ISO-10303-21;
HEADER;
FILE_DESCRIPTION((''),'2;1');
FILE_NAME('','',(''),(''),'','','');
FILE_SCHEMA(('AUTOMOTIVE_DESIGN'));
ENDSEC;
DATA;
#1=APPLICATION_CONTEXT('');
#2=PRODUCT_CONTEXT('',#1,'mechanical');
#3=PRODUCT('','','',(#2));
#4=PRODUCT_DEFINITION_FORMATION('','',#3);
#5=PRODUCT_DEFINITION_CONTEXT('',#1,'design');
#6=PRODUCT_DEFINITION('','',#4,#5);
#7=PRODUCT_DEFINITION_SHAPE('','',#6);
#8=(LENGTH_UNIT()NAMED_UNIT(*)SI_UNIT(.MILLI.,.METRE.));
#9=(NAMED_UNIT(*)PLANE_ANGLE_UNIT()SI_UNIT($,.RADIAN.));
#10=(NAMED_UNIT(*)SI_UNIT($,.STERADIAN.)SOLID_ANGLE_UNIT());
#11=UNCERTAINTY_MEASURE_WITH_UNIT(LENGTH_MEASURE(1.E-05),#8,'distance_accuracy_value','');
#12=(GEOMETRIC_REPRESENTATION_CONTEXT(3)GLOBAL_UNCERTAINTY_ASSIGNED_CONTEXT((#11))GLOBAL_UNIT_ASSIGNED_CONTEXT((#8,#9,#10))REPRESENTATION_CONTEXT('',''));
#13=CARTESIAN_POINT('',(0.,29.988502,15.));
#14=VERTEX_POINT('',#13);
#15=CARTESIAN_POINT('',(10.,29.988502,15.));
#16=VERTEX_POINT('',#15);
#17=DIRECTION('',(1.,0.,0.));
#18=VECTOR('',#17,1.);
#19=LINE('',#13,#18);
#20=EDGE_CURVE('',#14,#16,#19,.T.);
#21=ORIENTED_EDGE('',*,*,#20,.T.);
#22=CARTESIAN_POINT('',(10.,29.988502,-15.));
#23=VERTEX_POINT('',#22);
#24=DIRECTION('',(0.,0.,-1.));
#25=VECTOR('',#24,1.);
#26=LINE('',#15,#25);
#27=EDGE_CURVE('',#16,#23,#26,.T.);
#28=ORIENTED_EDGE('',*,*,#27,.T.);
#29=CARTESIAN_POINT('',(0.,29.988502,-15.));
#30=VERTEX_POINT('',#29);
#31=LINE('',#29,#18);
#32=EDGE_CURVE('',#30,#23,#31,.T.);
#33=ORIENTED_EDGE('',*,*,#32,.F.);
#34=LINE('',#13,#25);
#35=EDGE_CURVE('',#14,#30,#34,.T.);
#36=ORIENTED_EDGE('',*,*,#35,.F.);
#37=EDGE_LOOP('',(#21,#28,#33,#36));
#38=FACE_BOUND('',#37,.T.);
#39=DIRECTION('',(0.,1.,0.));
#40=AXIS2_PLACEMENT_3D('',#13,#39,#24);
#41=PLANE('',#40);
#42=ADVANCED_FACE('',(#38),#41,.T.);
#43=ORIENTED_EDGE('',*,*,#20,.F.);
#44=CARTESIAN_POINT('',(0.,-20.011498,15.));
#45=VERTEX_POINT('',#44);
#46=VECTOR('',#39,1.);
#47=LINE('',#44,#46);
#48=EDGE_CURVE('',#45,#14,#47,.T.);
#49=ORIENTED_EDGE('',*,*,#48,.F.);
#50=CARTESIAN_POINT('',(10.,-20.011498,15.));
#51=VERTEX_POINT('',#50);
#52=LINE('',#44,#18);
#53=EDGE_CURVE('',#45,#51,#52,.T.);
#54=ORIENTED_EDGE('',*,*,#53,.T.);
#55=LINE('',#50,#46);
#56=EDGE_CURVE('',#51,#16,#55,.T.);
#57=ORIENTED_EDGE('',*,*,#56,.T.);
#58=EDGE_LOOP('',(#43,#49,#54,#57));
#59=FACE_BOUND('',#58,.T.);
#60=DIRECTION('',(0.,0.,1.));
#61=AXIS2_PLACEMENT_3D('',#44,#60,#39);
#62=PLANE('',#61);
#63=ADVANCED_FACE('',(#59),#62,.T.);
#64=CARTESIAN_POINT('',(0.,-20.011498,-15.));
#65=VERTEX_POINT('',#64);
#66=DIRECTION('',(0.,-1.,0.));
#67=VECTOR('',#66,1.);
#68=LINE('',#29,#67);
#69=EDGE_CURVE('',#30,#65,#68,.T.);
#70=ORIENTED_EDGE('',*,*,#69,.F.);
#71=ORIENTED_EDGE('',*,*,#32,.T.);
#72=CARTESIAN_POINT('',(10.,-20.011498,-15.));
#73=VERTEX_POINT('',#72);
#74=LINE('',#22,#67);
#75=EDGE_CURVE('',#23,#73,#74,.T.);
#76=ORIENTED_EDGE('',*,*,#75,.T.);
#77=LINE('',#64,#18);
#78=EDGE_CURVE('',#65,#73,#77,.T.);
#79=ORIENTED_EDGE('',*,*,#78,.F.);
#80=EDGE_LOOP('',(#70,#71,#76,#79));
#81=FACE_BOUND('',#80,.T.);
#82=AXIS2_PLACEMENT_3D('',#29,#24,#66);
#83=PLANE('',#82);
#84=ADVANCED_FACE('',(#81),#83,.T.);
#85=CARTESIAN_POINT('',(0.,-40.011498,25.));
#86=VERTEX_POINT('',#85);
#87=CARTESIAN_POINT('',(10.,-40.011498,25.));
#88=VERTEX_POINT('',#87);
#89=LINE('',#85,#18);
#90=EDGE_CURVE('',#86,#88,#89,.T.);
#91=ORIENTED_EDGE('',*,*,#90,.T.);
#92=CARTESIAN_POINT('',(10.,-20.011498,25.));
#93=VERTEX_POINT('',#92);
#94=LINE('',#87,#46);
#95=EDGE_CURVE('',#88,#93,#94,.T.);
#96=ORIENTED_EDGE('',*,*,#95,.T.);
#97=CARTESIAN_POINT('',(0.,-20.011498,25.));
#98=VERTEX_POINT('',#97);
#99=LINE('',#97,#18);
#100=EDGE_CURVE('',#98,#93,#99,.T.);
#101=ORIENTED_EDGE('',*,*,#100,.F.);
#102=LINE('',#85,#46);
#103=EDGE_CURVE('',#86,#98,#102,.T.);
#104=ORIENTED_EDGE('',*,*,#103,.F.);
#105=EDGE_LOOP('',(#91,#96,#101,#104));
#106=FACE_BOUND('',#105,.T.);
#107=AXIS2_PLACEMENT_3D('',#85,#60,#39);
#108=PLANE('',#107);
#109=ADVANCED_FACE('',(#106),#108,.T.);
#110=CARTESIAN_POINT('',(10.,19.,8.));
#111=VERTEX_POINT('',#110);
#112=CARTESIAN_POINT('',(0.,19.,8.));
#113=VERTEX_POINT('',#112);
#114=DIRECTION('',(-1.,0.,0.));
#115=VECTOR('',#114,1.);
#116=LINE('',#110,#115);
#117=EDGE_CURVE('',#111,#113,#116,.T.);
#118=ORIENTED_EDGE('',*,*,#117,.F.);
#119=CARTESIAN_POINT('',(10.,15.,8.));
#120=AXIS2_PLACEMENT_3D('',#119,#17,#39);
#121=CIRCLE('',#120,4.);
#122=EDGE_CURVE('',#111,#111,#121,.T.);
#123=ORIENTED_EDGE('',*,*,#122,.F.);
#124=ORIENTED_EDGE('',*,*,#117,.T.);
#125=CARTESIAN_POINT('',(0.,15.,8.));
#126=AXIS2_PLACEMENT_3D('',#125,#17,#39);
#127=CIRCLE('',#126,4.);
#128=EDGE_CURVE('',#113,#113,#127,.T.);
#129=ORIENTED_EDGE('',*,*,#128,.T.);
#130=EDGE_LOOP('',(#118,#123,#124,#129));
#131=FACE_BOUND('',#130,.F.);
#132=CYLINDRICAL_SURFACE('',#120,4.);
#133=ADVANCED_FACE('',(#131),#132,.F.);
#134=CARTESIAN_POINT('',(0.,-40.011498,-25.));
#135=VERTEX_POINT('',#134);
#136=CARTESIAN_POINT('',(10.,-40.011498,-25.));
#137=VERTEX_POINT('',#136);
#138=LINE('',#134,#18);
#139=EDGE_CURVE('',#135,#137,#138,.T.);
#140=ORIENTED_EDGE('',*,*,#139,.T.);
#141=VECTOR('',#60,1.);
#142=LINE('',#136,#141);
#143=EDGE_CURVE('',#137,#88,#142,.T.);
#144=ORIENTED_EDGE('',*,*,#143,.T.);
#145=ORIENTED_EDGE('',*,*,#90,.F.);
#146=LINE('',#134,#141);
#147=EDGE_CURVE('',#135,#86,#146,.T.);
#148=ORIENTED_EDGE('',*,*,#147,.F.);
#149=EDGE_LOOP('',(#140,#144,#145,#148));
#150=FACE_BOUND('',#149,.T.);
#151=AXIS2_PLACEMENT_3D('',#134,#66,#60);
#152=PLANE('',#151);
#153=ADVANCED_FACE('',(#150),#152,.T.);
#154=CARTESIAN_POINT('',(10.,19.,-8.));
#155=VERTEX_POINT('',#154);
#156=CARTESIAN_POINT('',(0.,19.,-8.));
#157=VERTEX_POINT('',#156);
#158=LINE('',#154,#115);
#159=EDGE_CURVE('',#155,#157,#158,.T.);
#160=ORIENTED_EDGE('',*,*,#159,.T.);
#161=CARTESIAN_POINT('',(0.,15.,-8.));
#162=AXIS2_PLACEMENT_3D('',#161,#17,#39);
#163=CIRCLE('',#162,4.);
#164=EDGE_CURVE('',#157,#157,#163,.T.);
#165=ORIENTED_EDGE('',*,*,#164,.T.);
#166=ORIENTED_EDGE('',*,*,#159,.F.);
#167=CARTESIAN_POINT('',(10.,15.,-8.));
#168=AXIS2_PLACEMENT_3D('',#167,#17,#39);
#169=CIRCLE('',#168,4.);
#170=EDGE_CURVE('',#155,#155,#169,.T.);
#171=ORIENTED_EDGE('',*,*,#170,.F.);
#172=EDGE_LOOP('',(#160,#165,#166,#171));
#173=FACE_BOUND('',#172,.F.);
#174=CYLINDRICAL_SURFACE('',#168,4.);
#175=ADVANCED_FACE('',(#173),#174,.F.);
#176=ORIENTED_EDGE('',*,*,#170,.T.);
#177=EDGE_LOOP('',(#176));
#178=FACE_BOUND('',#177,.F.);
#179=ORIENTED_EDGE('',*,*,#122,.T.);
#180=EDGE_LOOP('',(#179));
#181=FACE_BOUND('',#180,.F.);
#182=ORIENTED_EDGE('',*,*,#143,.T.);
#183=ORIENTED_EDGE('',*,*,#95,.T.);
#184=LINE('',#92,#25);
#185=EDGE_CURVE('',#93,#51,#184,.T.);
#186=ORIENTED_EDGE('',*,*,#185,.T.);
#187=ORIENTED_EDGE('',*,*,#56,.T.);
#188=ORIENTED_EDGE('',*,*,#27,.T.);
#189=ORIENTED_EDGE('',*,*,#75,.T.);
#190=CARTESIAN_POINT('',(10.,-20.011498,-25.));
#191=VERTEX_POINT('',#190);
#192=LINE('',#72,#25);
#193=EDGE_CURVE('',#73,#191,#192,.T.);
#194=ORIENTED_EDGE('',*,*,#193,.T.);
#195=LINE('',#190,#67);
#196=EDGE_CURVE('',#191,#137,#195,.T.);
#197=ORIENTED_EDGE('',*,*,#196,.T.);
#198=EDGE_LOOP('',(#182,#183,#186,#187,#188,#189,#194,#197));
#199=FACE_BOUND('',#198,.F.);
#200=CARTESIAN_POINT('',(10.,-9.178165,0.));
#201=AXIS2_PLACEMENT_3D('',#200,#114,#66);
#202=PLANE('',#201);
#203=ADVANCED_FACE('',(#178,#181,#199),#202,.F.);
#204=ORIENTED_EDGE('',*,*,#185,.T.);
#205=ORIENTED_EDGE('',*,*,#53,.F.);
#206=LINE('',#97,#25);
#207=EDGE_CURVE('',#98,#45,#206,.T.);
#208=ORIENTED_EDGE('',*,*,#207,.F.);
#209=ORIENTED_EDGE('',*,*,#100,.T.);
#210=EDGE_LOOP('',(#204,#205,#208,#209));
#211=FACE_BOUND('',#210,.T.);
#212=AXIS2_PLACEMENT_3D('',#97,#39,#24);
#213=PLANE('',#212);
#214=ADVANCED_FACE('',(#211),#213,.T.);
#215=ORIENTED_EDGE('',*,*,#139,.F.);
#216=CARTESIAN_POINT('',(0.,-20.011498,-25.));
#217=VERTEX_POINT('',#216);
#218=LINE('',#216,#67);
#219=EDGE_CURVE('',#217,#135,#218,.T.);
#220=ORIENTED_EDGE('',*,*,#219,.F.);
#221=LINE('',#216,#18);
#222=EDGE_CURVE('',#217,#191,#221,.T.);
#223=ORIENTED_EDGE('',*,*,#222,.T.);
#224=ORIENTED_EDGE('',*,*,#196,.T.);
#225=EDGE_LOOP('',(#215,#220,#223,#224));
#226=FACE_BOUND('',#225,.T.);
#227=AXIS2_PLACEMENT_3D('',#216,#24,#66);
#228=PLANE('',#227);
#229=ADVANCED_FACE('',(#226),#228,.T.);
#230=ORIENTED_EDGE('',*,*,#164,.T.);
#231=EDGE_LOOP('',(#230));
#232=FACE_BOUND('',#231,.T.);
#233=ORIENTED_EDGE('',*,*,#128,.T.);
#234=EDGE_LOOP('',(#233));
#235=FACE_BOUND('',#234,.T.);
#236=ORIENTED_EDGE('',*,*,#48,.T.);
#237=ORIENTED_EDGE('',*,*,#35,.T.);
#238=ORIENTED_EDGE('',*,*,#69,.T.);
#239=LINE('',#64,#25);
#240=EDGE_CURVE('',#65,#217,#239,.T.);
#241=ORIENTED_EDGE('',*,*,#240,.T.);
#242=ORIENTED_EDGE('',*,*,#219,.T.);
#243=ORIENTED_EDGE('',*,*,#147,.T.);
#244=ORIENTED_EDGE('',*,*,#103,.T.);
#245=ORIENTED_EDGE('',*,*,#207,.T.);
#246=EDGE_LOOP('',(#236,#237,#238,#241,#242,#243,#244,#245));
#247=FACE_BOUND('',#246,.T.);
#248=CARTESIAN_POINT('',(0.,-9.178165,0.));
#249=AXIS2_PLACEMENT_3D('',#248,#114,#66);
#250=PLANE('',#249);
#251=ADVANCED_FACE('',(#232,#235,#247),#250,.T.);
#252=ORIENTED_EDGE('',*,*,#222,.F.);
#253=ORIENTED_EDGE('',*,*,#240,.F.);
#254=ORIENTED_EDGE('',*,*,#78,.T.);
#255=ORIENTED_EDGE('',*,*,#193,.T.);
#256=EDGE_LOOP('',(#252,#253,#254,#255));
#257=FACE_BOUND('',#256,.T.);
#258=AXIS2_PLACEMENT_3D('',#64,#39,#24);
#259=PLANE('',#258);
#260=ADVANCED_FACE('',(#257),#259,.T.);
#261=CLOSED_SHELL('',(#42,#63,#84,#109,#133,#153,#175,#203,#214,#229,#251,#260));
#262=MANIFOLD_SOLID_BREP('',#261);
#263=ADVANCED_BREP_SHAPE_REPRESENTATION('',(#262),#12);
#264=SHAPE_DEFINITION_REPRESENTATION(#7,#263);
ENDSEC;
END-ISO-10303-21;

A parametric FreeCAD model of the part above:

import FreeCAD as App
import Part
import Sketcher

V = App.Vector

doc = App.newDocument("Part")
params = doc.addObject("Spreadsheet::Sheet", "Params")
for row, (alias, value) in enumerate([
    ("sketch1_width", "20 mm"),
    ("sketch1_width2", "50 mm"),
    ("sketch1_height", "10 mm"),
    ("pad1_length", "10 mm"),
    ("sketch2_diameter", "8 mm"),
    ("pocket1_length", "10 mm"),
], start=1):
    params.set(f"A{row}", alias)
    params.set(f"B{row}", "=" + value)
    params.setAlias(f"B{row}", alias)

body = doc.addObject("PartDesign::Body", "Body")

# Sketch on YZ plane
sketch1 = body.newObject("Sketcher::SketchObject", "Sketch")
sketch1.AttachmentSupport = (doc.getObject("YZ_Plane"), [""])
sketch1.MapMode = "FlatFace"
sketch1.addGeometry(Part.LineSegment(V(-20, 25, 0), V(-40, 25, 0)), False)
sketch1.addGeometry(Part.LineSegment(V(-40, 25, 0), V(-40, -25, 0)), False)
sketch1.addGeometry(Part.LineSegment(V(-40, -25, 0), V(-20, -25, 0)), False)
sketch1.addGeometry(Part.LineSegment(V(-20, -25, 0), V(-20, -15, 0)), False)
sketch1.addGeometry(Part.LineSegment(V(-20, -15, 0), V(30, -15, 0)), False)
sketch1.addGeometry(Part.LineSegment(V(30, -15, 0), V(30, 15, 0)), False)
sketch1.addGeometry(Part.LineSegment(V(30, 15, 0), V(-20, 15, 0)), False)
sketch1.addGeometry(Part.LineSegment(V(-20, 15, 0), V(-20, 25, 0)), False)
sketch1.addConstraint(Sketcher.Constraint("Coincident", 0, 2, 1, 1))
sketch1.addConstraint(Sketcher.Constraint("Coincident", 1, 2, 2, 1))
sketch1.addConstraint(Sketcher.Constraint("Coincident", 2, 2, 3, 1))
sketch1.addConstraint(Sketcher.Constraint("Coincident", 3, 2, 4, 1))
sketch1.addConstraint(Sketcher.Constraint("Coincident", 4, 2, 5, 1))
sketch1.addConstraint(Sketcher.Constraint("Coincident", 5, 2, 6, 1))
sketch1.addConstraint(Sketcher.Constraint("Coincident", 6, 2, 7, 1))
sketch1.addConstraint(Sketcher.Constraint("Coincident", 7, 2, 0, 1))
sketch1.addConstraint(Sketcher.Constraint("Horizontal", 0))
sketch1.addConstraint(Sketcher.Constraint("Vertical", 1))
sketch1.addConstraint(Sketcher.Constraint("Horizontal", 2))
sketch1.addConstraint(Sketcher.Constraint("Vertical", 3))
sketch1.addConstraint(Sketcher.Constraint("Horizontal", 4))
sketch1.addConstraint(Sketcher.Constraint("Vertical", 5))
sketch1.addConstraint(Sketcher.Constraint("Horizontal", 6))
sketch1.addConstraint(Sketcher.Constraint("Vertical", 7))
sketch1.addConstraint(Sketcher.Constraint("Symmetric", 3, 2, 6, 2, -1))
sketch1.addConstraint(Sketcher.Constraint("Equal", 6, 1))
sketch1.addConstraint(Sketcher.Constraint("Equal", 3, 7))
sketch1.addConstraint(Sketcher.Constraint("DistanceX", 0, 2, 0, 1, 20.0))
sketch1.addConstraint(Sketcher.Constraint("DistanceX", 4, 1, 4, 2, 50.0))
sketch1.addConstraint(Sketcher.Constraint("DistanceY", 3, 1, 3, 2, 10.0))
sketch1.addConstraint(Sketcher.Constraint("DistanceX", 0, 2, -1, 1, 40.011498))
sketch1.setExpression("Constraints[19]", "Params.sketch1_width")
sketch1.setExpression("Constraints[20]", "Params.sketch1_width2")
sketch1.setExpression("Constraints[21]", "Params.sketch1_height")
pad1 = body.newObject("PartDesign::Pad", "Pad")
pad1.Profile = sketch1
pad1.setExpression("Length", "Params.pad1_length")

# Sketch on YZ plane
sketch2 = body.newObject("Sketcher::SketchObject", "Sketch001")
sketch2.AttachmentSupport = (doc.getObject("YZ_Plane"), [""])
sketch2.MapMode = "FlatFace"
sketch2.AttachmentOffset = App.Placement(V(0, 0, 10), App.Rotation())
sketch2.addGeometry(Part.Circle(V(15, 8, 0), V(0, 0, 1), 4), False)
sketch2.addGeometry(Part.Circle(V(15, -8, 0), V(0, 0, 1), 4), False)
sketch2.addConstraint(Sketcher.Constraint("Equal", 0, 1))
sketch2.addConstraint(Sketcher.Constraint("Symmetric", 0, 3, 1, 3, -1))
sketch2.addConstraint(Sketcher.Constraint("Diameter", 0, 8.0))
sketch2.addConstraint(Sketcher.Constraint("DistanceX", -1, 1, 0, 3, 15.0))
sketch2.addConstraint(Sketcher.Constraint("DistanceY", -1, 1, 0, 3, 8.0))
sketch2.setExpression("Constraints[2]", "Params.sketch2_diameter")
pocket1 = body.newObject("PartDesign::Pocket", "Pocket")
pocket1.Profile = sketch2
pocket1.setExpression("Length", "Params.pocket1_length")

doc.recompute()
